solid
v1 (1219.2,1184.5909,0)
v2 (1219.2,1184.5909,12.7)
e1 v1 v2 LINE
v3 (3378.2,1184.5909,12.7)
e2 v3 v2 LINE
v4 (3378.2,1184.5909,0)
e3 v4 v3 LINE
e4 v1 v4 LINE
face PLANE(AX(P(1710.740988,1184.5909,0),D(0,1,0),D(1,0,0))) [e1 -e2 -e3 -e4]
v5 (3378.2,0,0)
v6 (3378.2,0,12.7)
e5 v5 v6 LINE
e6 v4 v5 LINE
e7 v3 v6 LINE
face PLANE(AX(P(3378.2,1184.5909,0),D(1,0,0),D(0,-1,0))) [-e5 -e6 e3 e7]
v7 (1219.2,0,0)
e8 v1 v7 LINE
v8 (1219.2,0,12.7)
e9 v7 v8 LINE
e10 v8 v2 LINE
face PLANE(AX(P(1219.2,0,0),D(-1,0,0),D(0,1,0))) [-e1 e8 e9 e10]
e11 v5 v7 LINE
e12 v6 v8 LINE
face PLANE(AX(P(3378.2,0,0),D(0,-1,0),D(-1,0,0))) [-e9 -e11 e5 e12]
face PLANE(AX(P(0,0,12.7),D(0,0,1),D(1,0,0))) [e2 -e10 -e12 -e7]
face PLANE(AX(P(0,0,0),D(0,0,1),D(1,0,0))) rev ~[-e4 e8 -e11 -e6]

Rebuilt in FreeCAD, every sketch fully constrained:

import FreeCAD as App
import Part
import Sketcher
Q = App.Units.Quantity


def add_polygon(sketch, points):
    """Adds a closed chain of lines whose ends are joined by coincident constraints."""
    first, n = sketch.GeometryCount, len(points)
    for a, b in zip(points, points[1:] + points[:1]):
        sketch.addGeometry(Part.LineSegment(App.Vector(*a, 0), App.Vector(*b, 0)), False)
    for i in range(n):
        sketch.addConstraint(Sketcher.Constraint("Coincident", first + i, 2, first + (i + 1) % n, 1))

doc = App.newDocument("Part")
body = doc.addObject("PartDesign::Body", "Body")

sketch1 = body.newObject("Sketcher::SketchObject", "Sketch")
sketch1.AttachmentSupport = (doc.getObject("XY_Plane"), [""])
sketch1.MapMode = "FlatFace"
add_polygon(sketch1, [(1219, 0), (3378, 0), (3378, 1185), (1219, 1185)])
sketch1.addConstraint([
    Sketcher.Constraint("Horizontal", 0),
    Sketcher.Constraint("Vertical", 1),
    Sketcher.Constraint("Horizontal", 2),
    Sketcher.Constraint("Vertical", 3),
    Sketcher.Constraint("PointOnObject", 0, 2, -1),
    Sketcher.Constraint("DistanceX", 0, 1, 0, 2, Q("85 in")),
    Sketcher.Constraint("DistanceX", -1, 1, 2, 2, Q("48 in")),
    Sketcher.Constraint("DistanceY", 1, 1, 1, 2, Q("1184.591 mm")),
])
pad1 = body.newObject("PartDesign::Pad", "Pad")
pad1.Profile = sketch1
pad1.Length = Q("0.5 in")

doc.recompute()
